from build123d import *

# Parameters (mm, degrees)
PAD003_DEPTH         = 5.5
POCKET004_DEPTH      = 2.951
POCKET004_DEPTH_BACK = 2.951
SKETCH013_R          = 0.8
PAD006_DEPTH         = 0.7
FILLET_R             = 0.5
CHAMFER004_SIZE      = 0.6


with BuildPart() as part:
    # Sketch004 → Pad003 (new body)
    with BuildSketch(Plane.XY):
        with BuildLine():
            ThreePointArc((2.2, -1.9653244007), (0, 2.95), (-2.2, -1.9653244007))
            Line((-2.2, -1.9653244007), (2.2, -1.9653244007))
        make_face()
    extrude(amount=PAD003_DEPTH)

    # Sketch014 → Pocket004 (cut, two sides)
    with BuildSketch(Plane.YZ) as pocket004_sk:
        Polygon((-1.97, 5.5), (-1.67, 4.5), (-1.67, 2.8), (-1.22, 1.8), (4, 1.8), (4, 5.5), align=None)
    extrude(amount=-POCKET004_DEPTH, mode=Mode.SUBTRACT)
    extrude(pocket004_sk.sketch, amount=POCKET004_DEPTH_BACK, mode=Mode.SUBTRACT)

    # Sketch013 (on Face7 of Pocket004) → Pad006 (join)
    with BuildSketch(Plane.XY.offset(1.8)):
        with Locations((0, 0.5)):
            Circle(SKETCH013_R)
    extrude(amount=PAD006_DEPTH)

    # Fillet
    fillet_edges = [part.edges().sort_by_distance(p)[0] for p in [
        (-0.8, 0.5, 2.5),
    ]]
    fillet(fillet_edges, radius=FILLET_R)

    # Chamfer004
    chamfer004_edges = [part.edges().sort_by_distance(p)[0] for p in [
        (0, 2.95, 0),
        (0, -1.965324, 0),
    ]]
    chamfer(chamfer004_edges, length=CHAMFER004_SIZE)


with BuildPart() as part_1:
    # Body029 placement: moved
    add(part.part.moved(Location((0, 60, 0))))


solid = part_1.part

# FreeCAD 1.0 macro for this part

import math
import FreeCAD as App
import Part
import Sketcher

V = App.Vector


def edges_at(feature, points):
    """Names of the edges that pass closest to the given points."""
    edges = feature.Shape.Edges
    near = lambda p: min(range(len(edges)), key=lambda i: edges[i].distToShape(Part.Vertex(*p))[0])
    return sorted({f"Edge{near(p) + 1}" for p in points})

doc = App.newDocument("Part")
params = doc.addObject("Spreadsheet::Sheet", "Params")
for row, (alias, value) in enumerate([
    ("sketch1_radius", "2.95 mm"),
    ("sketch1_width", "4.4 mm"),
    ("pad1_length", "5.5 mm"),
    ("sketch2_height", "1.7 mm"),
    ("sketch2_height2", "3.7 mm"),
    ("sketch2_width", "5.22 mm"),
    ("sketch2_width2", "5.97 mm"),
    ("sketch3_diameter", "1.6 mm"),
    ("pad2_length", "0.7 mm"),
    ("fillet_radius", "0.5 mm"),
    ("chamfer_size", "0.6 mm"),
], start=1):
    params.set(f"A{row}", alias)
    params.set(f"B{row}", "=" + value)
    params.setAlias(f"B{row}", alias)

body = doc.addObject("PartDesign::Body", "Body")

sketch1 = doc.addObject("Sketcher::SketchObject", "Sketch")
body.addObject(sketch1)
sketch1.AttachmentSupport = (doc.XY_Plane, [""])
sketch1.MapMode = "FlatFace"
sketch1.addGeometry([
    Part.ArcOfCircle(Part.Circle(V(0, 0, 0), V(0, 0, 1), 3), math.radians(-42), math.radians(222)),
    Part.LineSegment(V(-2.2, -2, 0), V(2.2, -2, 0)),
], False)
sketch1.addConstraint([
    Sketcher.Constraint("Coincident", 0, 1, 1, 2),
    Sketcher.Constraint("Coincident", 1, 1, 0, 2),
    Sketcher.Constraint("Horizontal", 1),
    Sketcher.Constraint("Coincident", 0, 3, -1, 1),
    Sketcher.Constraint("Radius", 0, 2.95),
    Sketcher.Constraint("DistanceX", 1, 1, 1, 2, 4.4),
])
sketch1.setExpression("Constraints[4]", "Params.sketch1_radius")
sketch1.setExpression("Constraints[5]", "Params.sketch1_width")
pad1 = doc.addObject("PartDesign::Pad", "Pad")
body.addObject(pad1)
pad1.Profile = sketch1
pad1.setExpression("Length", "Params.pad1_length")

sketch2 = doc.addObject("Sketcher::SketchObject", "Sketch001")
body.addObject(sketch2)
sketch2.AttachmentSupport = (doc.YZ_Plane, [""])
sketch2.MapMode = "FlatFace"
sketch2.addGeometry([
    Part.LineSegment(V(-2, 5.5, 0), V(-1.7, 4.5, 0)),
    Part.LineSegment(V(-1.7, 4.5, 0), V(-1.7, 2.8, 0)),
    Part.LineSegment(V(-1.7, 2.8, 0), V(-1.2, 1.8, 0)),
    Part.LineSegment(V(-1.2, 1.8, 0), V(4, 1.8, 0)),
    Part.LineSegment(V(4, 1.8, 0), V(4, 5.5, 0)),
    Part.LineSegment(V(4, 5.5, 0), V(-2, 5.5, 0)),
], False)
sketch2.addConstraint([
    Sketcher.Constraint("Coincident", 0, 2, 1, 1),
    Sketcher.Constraint("Coincident", 1, 2, 2, 1),
    Sketcher.Constraint("Coincident", 2, 2, 3, 1),
    Sketcher.Constraint("Coincident", 3, 2, 4, 1),
    Sketcher.Constraint("Coincident", 4, 2, 5, 1),
    Sketcher.Constraint("Coincident", 5, 2, 0, 1),
    Sketcher.Constraint("Vertical", 1),
    Sketcher.Constraint("Horizontal", 3),
    Sketcher.Constraint("Vertical", 4),
    Sketcher.Constraint("Horizontal", 5),
    Sketcher.Constraint("DistanceY", 1, 2, 1, 1, 1.7),
    Sketcher.Constraint("DistanceY", 4, 1, 4, 2, 3.7),
    Sketcher.Constraint("DistanceX", -1, 1, 3, 2, 4.0),
    Sketcher.Constraint("DistanceY", 2, 2, 1, 2, 1.0),
    Sketcher.Constraint("DistanceX", 3, 1, 3, 2, 5.22),
    Sketcher.Constraint("DistanceX", 5, 2, 5, 1, 5.97),
    Sketcher.Constraint("DistanceY", -1, 1, 0, 2, 4.5),
    Sketcher.Constraint("DistanceX", 5, 2, 0, 2, 0.3),
])
sketch2.setExpression("Constraints[10]", "Params.sketch2_height")
sketch2.setExpression("Constraints[11]", "Params.sketch2_height2")
sketch2.setExpression("Constraints[14]", "Params.sketch2_width")
sketch2.setExpression("Constraints[15]", "Params.sketch2_width2")
pocket1 = doc.addObject("PartDesign::Pocket", "Pocket")
body.addObject(pocket1)
pocket1.Profile = sketch2
pocket1.Type = "ThroughAll"
pocket1.Midplane = True

sketch3 = doc.addObject("Sketcher::SketchObject", "Sketch002")
body.addObject(sketch3)
sketch3.AttachmentSupport = (doc.XY_Plane, [""])
sketch3.MapMode = "FlatFace"
sketch3.AttachmentOffset = App.Placement(V(0, 0, 1.8), App.Rotation())
sketch3.addGeometry(Part.Circle(V(0, 0.5, 0), V(0, 0, 1), 0.8), False)
sketch3.addConstraint([
    Sketcher.Constraint("PointOnObject", 0, 3, -2),
    Sketcher.Constraint("Diameter", 0, 1.6),
    Sketcher.Constraint("DistanceY", -1, 1, 0, 3, 0.5),
])
sketch3.setExpression("Constraints[1]", "Params.sketch3_diameter")
pad2 = doc.addObject("PartDesign::Pad", "Pad001")
body.addObject(pad2)
pad2.Profile = sketch3
pad2.setExpression("Length", "Params.pad2_length")
doc.recompute()

fillet = doc.addObject("PartDesign::Fillet", "Fillet")
body.addObject(fillet)
fillet.Base = (pad2, edges_at(pad2, [(-0.8, 0.5, 2.5)]))
fillet.setExpression("Radius", "Params.fillet_radius")
doc.recompute()

chamfer = doc.addObject("PartDesign::Chamfer", "Chamfer")
body.addObject(chamfer)
chamfer.Base = (fillet, edges_at(fillet, [(0, 2.95, 0), (0, -1.965, 0)]))
chamfer.setExpression("Size", "Params.chamfer_size")
body2 = doc.addObject("PartDesign::Body", "Body001")
doc.recompute()

body.Placement = App.Placement(V(0, 60, 0), App.Rotation(V(0, 0, 1), 0))
boolean = doc.addObject("PartDesign::Boolean", "Boolean")
body2.addObject(boolean)
boolean.Type = "Fuse"
boolean.addObjects([body])

doc.recompute()
